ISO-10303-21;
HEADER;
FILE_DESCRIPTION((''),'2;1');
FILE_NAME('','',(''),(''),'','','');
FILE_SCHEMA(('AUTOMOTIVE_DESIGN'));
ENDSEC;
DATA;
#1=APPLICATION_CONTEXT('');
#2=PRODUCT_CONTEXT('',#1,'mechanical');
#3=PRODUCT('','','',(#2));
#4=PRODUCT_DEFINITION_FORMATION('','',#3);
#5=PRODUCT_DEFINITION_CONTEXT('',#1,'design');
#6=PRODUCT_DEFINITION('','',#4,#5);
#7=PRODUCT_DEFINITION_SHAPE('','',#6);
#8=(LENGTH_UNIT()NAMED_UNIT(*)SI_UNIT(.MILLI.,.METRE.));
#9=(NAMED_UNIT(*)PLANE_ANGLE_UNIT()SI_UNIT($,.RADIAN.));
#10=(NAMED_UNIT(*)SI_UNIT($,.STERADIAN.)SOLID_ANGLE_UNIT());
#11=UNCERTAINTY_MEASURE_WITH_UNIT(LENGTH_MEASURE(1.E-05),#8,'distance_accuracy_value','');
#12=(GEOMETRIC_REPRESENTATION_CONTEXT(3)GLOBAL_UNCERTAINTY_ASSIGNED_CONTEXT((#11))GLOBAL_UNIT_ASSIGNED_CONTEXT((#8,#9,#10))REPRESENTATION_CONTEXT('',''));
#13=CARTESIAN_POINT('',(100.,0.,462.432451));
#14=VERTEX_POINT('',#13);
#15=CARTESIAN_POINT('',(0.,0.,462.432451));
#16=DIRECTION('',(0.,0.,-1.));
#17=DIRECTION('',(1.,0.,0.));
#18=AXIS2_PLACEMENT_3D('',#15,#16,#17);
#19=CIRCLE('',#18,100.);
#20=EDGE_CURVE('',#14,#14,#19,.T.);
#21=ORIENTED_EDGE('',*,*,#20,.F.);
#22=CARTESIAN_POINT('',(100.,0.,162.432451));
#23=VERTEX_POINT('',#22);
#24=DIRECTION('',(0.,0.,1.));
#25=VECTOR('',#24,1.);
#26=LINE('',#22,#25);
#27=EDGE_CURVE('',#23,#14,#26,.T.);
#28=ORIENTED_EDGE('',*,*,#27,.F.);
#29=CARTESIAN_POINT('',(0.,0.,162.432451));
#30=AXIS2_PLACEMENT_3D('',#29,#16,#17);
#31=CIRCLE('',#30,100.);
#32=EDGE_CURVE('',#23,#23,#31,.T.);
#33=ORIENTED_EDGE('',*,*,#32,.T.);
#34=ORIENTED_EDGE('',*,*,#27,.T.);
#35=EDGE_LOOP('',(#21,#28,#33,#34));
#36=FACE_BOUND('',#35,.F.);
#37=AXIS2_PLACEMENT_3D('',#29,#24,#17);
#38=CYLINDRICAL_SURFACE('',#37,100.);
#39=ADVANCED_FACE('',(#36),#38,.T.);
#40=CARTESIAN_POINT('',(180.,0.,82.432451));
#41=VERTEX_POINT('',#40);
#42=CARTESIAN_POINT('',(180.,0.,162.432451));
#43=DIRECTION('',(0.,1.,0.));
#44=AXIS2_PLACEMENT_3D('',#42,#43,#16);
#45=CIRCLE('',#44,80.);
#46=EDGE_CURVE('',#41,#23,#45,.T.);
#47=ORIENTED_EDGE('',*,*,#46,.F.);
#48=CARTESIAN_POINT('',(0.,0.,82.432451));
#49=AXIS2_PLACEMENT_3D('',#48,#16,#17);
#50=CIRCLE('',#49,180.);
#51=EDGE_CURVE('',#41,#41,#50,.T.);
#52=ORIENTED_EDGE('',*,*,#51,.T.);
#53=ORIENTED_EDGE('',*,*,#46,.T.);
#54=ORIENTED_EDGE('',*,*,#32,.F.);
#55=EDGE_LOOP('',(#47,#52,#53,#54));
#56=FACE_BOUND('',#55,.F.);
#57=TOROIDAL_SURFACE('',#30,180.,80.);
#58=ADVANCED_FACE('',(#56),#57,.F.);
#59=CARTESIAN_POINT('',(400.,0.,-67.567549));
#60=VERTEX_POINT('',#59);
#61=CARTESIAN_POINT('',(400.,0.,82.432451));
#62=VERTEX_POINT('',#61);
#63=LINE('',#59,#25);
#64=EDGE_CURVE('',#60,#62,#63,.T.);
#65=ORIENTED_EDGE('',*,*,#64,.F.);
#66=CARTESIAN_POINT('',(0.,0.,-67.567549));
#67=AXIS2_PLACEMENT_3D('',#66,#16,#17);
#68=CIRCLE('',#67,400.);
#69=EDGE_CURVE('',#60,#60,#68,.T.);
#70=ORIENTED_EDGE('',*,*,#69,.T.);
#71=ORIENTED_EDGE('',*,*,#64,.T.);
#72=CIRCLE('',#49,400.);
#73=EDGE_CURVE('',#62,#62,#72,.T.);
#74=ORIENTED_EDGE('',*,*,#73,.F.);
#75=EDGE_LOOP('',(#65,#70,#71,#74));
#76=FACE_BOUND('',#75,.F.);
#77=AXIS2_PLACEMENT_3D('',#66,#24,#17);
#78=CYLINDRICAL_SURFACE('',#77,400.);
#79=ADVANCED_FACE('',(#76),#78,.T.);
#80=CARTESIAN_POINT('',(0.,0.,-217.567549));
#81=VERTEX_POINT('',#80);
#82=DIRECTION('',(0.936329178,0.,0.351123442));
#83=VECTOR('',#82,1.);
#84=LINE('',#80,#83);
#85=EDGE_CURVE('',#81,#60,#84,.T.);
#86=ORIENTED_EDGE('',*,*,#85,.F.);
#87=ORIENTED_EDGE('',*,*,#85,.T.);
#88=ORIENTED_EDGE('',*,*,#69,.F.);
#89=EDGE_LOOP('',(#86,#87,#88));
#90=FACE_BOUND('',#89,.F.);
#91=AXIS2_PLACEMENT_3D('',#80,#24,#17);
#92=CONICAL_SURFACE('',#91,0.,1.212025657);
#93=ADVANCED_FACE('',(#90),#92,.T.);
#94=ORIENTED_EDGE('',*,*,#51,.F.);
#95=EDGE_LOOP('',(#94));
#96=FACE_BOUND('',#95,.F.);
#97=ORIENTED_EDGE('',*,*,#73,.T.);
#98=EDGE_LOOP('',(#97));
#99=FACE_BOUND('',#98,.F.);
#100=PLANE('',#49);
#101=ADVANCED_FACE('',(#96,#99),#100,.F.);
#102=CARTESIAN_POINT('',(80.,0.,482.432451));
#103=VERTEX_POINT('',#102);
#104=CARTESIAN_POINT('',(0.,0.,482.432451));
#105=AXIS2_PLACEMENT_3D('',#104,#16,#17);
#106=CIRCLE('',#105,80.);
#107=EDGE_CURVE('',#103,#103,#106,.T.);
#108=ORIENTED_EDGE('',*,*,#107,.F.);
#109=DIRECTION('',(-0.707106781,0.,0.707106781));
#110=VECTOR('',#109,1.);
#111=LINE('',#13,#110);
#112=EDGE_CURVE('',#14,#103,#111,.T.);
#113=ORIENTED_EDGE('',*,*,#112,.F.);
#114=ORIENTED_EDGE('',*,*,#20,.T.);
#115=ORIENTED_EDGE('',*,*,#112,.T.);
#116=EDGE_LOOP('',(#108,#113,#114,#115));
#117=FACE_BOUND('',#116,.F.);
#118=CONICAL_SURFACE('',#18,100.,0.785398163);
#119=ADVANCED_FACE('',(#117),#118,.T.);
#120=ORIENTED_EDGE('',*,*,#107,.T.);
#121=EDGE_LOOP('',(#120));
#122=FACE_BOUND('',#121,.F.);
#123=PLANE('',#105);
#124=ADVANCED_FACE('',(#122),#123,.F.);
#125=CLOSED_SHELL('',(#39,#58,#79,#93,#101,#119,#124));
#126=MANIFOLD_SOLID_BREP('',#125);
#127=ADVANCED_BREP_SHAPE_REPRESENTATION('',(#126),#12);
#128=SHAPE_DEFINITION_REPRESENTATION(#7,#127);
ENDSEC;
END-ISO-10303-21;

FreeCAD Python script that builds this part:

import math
import FreeCAD as App
import Part
import Sketcher

V = App.Vector


def edges_at(feature, points):
    """Names of the edges that pass closest to the given points."""
    edges = feature.Shape.Edges
    near = lambda p: min(range(len(edges)), key=lambda i: edges[i].distToShape(Part.Vertex(*p))[0])
    return sorted({f"Edge{near(p) + 1}" for p in points})

doc = App.newDocument("Part")
body = doc.addObject("PartDesign::Body", "Body")

# Sketch on XZ plane
sketch1 = body.newObject("Sketcher::SketchObject", "Sketch")
sketch1.AttachmentSupport = (doc.getObject("XZ_Plane"), [""])
sketch1.MapMode = "FlatFace"
sketch1.addGeometry(Part.LineSegment(V(100, 162, 0), V(100, 482, 0)), False)
sketch1.addGeometry(Part.LineSegment(V(100, 482, 0), V(0, 482, 0)), False)
sketch1.addGeometry(Part.LineSegment(V(0, 482, 0), V(0, -218, 0)), False)
sketch1.addGeometry(Part.LineSegment(V(0, -218, 0), V(400, -68, 0)), False)
sketch1.addGeometry(Part.LineSegment(V(400, -68, 0), V(400, 82, 0)), False)
sketch1.addGeometry(Part.LineSegment(V(400, 82, 0), V(180, 82, 0)), False)
sketch1.addGeometry(Part.ArcOfCircle(Part.Circle(V(180, 162, 0), V(0, 0, 1), 80), math.radians(180), math.radians(270)), False)
sketch1.addConstraint(Sketcher.Constraint("Coincident", 0, 2, 1, 1))
sketch1.addConstraint(Sketcher.Constraint("Coincident", 1, 2, 2, 1))
sketch1.addConstraint(Sketcher.Constraint("Coincident", 2, 2, 3, 1))
sketch1.addConstraint(Sketcher.Constraint("Coincident", 3, 2, 4, 1))
sketch1.addConstraint(Sketcher.Constraint("Coincident", 4, 2, 5, 1))
sketch1.addConstraint(Sketcher.Constraint("Tangent", 5, 2, 6, 2))
sketch1.addConstraint(Sketcher.Constraint("Tangent", 6, 1, 0, 1))
sketch1.addConstraint(Sketcher.Constraint("Vertical", 0))
sketch1.addConstraint(Sketcher.Constraint("Horizontal", 1))
sketch1.addConstraint(Sketcher.Constraint("Vertical", 2))
sketch1.addConstraint(Sketcher.Constraint("Vertical", 4))
sketch1.addConstraint(Sketcher.Constraint("Horizontal", 5))
sketch1.addConstraint(Sketcher.Constraint("PointOnObject", 1, 2, -2))
sketch1.addConstraint(Sketcher.Constraint("Radius", 6, 80.0))
sketch1.addConstraint(Sketcher.Constraint("DistanceX", 1, 2, 1, 1, 100.0))
sketch1.addConstraint(Sketcher.Constraint("DistanceX", 5, 2, 5, 1, 220.0))
sketch1.addConstraint(Sketcher.Constraint("DistanceY", 0, 1, 0, 2, 320.0))
sketch1.addConstraint(Sketcher.Constraint("DistanceY", 2, 2, 2, 1, 700.0))
sketch1.addConstraint(Sketcher.Constraint("DistanceY", 4, 1, 4, 2, 150.0))
sketch1.addConstraint(Sketcher.Constraint("DistanceY", -1, 1, 6, 3, 162.432451))
revolution = body.newObject("PartDesign::Revolution", "Revolution")
revolution.Profile = sketch1
revolution.ReferenceAxis = (sketch1, ["V_Axis"])
revolution.Angle = 360
doc.recompute()

chamfer = body.newObject("PartDesign::Chamfer", "Chamfer")
chamfer.Base = (revolution, edges_at(revolution, [(-100, 0, 482.432)]))
chamfer.Size = 20

doc.recompute()
